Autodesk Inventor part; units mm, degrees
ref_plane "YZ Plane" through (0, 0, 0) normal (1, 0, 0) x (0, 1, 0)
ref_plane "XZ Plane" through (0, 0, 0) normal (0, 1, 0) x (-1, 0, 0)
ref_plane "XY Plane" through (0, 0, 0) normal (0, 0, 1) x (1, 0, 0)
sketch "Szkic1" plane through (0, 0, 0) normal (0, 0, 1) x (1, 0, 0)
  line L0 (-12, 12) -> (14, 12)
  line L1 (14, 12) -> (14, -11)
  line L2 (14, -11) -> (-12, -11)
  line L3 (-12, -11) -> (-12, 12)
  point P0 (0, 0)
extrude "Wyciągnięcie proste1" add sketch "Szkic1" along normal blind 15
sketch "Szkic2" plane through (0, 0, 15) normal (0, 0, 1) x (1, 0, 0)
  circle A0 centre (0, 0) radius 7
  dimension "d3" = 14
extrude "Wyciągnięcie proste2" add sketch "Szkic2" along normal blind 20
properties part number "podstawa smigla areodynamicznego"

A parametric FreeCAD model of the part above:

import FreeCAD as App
import Part
import Sketcher
from FreeCAD import Vector
Q = App.Units.Quantity


def add_polygon(sketch, points):
    """Adds a closed chain of lines whose ends are joined by coincident constraints."""
    first, n = sketch.GeometryCount, len(points)
    for a, b in zip(points, points[1:] + points[:1]):
        sketch.addGeometry(Part.LineSegment(App.Vector(*a, 0), App.Vector(*b, 0)), False)
    for i in range(n):
        sketch.addConstraint(Sketcher.Constraint("Coincident", first + i, 2, first + (i + 1) % n, 1))

doc = App.newDocument("Part")
body = doc.addObject("PartDesign::Body", "Body")

# Sketch on XY plane
sketch1 = body.newObject("Sketcher::SketchObject", "Sketch")
sketch1.AttachmentSupport = (doc.getObject("XY_Plane"), [""])
sketch1.MapMode = "FlatFace"
add_polygon(sketch1, [(14, 12), (-12, 12), (-12, -11), (14, -11)])  # lines 0-3
sketch1.addConstraint([
    Sketcher.Constraint("Horizontal", 0),
    Sketcher.Constraint("Vertical", 1),
    Sketcher.Constraint("Horizontal", 2),
    Sketcher.Constraint("Vertical", 3),
    Sketcher.Constraint("DistanceX", 0, 2, 0, 1, Q("26 mm")),
    Sketcher.Constraint("DistanceY", 1, 2, 1, 1, Q("23 mm")),
    Sketcher.Constraint("DistanceX", 0, 2, -1, 1, Q("12 mm")),
    Sketcher.Constraint("DistanceY", -1, 1, 0, 2, Q("12 mm")),
])
pad1 = body.newObject("PartDesign::Pad", "Pad")
pad1.Profile = sketch1
pad1.Length = 15

# Sketch on XY plane
sketch2 = body.newObject("Sketcher::SketchObject", "Sketch001")
sketch2.AttachmentSupport = (doc.getObject("XY_Plane"), [""])
sketch2.MapMode = "FlatFace"
sketch2.AttachmentOffset = App.Placement(Vector(0, 0, 15), App.Rotation())
sketch2.addGeometry(Part.Circle(Vector(0, 0, 0), Vector(0, 0, 1), 7), False)
sketch2.addConstraint([
    Sketcher.Constraint("Coincident", 0, 3, -1, 1),
    Sketcher.Constraint("Diameter", 0, Q("14 mm")),
])
pad2 = body.newObject("PartDesign::Pad", "Pad001")
pad2.Profile = sketch2
pad2.Length = 20

doc.recompute()
